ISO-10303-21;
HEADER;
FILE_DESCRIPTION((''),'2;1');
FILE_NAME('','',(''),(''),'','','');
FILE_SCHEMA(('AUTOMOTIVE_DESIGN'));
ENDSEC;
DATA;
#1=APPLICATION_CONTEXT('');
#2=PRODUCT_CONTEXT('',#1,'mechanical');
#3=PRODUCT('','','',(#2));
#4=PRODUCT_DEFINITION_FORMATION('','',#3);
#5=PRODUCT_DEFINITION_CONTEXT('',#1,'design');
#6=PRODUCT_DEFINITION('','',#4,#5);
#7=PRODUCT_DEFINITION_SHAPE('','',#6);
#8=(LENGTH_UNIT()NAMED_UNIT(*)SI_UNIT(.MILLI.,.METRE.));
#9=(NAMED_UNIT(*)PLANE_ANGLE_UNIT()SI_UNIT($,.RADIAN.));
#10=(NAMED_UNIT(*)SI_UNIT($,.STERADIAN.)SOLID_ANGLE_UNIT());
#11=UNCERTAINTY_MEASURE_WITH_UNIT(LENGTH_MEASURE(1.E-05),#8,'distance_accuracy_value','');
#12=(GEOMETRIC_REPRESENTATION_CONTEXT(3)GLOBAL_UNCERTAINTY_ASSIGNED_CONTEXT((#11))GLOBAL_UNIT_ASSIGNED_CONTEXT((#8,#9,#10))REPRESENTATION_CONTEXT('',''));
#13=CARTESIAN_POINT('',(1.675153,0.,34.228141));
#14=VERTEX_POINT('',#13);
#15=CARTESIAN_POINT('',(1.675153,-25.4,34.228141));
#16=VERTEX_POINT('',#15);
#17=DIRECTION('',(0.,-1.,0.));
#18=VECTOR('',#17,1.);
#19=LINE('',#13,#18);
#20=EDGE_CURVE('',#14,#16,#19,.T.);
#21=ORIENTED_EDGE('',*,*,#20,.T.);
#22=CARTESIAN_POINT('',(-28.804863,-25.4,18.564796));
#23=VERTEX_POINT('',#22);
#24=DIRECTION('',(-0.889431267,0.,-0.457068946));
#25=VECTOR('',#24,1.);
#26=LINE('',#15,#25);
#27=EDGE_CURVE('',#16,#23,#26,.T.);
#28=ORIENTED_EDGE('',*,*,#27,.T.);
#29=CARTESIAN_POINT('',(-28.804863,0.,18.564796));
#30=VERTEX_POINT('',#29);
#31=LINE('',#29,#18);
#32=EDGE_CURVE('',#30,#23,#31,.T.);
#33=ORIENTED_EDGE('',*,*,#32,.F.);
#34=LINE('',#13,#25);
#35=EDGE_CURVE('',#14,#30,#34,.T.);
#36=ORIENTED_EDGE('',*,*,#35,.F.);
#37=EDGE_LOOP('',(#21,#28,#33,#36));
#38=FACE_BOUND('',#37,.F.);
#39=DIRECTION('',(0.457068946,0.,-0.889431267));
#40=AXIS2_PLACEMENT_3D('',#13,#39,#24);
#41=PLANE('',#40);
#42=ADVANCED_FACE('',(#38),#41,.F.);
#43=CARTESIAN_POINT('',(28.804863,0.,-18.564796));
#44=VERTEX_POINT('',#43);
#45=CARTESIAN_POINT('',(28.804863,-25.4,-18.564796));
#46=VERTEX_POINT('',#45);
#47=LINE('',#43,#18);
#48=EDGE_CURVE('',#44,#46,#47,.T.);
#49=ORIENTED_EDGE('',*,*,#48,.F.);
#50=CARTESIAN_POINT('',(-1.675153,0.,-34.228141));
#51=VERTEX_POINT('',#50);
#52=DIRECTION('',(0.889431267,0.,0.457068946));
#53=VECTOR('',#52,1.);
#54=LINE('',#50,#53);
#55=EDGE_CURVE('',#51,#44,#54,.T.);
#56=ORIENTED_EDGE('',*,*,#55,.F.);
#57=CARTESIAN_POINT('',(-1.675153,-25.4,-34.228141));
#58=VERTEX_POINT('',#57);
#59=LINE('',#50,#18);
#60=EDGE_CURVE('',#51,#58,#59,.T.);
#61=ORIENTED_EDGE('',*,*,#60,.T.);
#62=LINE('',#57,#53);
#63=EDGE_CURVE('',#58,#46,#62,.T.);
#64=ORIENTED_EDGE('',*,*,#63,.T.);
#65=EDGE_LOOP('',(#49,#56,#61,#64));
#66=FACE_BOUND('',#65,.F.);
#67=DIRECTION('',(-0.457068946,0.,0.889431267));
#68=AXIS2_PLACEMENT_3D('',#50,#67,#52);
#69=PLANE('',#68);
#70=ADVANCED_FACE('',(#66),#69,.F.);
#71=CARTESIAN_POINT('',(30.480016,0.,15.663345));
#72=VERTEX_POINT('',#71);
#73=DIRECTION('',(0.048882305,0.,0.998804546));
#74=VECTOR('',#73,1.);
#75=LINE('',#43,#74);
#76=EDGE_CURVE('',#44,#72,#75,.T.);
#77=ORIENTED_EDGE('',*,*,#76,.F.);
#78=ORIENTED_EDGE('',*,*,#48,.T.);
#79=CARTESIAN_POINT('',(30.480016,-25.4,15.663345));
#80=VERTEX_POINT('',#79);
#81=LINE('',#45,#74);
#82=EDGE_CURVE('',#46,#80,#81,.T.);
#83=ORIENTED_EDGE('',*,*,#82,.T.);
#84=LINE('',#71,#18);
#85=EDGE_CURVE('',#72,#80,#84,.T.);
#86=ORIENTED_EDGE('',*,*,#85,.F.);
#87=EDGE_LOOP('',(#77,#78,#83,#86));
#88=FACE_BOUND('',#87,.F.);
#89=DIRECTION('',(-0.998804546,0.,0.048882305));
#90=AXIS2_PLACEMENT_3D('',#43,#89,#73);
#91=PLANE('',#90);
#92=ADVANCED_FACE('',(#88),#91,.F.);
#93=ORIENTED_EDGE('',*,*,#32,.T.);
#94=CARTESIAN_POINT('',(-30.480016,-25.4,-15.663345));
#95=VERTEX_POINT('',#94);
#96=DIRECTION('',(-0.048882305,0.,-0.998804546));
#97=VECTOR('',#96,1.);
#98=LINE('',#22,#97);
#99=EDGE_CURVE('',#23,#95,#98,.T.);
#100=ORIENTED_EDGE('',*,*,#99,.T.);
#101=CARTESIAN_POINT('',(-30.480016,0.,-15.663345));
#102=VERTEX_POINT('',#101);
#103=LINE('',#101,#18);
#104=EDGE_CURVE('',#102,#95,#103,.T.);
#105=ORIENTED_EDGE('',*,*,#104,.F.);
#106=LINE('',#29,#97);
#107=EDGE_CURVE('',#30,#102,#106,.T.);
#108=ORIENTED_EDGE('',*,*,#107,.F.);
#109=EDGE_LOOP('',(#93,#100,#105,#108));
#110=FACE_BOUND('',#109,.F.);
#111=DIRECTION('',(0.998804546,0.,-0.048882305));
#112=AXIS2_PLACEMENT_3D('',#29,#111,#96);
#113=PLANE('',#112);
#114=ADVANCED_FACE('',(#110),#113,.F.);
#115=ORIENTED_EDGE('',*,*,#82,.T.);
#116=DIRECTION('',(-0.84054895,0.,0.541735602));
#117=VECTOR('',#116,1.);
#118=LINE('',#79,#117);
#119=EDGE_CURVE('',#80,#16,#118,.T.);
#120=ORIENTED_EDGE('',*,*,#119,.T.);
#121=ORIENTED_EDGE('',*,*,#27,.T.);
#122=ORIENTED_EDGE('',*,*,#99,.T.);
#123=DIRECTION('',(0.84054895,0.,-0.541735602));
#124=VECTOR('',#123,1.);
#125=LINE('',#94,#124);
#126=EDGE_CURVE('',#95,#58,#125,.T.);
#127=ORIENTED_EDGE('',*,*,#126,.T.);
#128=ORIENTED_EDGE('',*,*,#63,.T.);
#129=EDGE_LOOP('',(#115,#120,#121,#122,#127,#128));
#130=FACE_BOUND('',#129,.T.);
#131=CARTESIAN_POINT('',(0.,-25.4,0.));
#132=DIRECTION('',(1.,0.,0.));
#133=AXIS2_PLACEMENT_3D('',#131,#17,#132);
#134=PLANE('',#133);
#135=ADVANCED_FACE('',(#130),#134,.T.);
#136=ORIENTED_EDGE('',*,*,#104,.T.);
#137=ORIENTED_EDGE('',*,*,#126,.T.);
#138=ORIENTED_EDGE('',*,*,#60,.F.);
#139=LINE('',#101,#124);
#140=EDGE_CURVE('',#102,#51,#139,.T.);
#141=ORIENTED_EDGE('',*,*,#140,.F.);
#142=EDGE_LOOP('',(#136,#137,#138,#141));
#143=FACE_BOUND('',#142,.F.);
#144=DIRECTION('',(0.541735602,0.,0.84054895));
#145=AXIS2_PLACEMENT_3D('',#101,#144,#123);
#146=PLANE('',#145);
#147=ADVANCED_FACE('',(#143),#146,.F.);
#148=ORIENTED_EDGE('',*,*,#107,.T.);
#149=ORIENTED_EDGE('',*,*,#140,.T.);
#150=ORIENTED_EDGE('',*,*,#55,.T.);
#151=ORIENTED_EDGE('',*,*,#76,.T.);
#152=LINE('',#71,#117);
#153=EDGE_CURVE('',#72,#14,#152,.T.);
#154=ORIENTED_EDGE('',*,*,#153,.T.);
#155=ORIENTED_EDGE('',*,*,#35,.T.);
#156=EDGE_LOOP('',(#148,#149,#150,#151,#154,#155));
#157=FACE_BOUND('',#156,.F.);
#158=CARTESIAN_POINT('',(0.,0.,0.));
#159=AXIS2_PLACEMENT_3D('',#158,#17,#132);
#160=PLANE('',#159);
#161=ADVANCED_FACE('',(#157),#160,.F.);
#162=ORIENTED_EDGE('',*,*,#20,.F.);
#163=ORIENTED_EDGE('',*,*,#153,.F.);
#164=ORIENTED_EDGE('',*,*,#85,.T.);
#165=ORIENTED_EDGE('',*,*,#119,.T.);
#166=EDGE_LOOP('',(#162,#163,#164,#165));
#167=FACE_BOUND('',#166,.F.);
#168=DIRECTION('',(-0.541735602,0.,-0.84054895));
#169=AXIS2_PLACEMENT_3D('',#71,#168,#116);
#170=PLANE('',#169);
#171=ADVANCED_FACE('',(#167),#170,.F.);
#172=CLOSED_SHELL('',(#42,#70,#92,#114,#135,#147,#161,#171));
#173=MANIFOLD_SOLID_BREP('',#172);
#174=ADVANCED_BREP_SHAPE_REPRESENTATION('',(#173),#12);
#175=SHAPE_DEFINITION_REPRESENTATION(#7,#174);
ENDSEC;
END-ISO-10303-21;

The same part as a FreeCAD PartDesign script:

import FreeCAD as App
import Part
import Sketcher
Q = App.Units.Quantity

doc = App.newDocument("Part")
params = doc.addObject("Spreadsheet::Sheet", "Params")
for row, (alias, value) in enumerate([
    ("pad1_length", "1 in"),
    ("pad2_length", "1 in"),
], start=1):
    params.set(f"A{row}", alias)
    params.set(f"B{row}", "=" + value)
    params.setAlias(f"B{row}", alias)

body = doc.addObject("PartDesign::Body", "Body")

sketch1 = doc.addObject("Sketcher::SketchObject", "Sketch")
body.addObject(sketch1)
sketch1.AttachmentSupport = (doc.XZ_Plane, [""])
sketch1.MapMode = "FlatFace"
sketch1.addGeometry(Part.LineSegment(App.Vector(-2, -34, 0), App.Vector(29, -19, 0)), False)
sketch1.addGeometry(Part.LineSegment(App.Vector(29, -19, 0), App.Vector(30, 16, 0)), False)
sketch1.addGeometry(Part.LineSegment(App.Vector(30, 16, 0), App.Vector(2, 34, 0)), False)
sketch1.addGeometry(Part.LineSegment(App.Vector(2, 34, 0), App.Vector(-29, 19, 0)), False)
sketch1.addGeometry(Part.LineSegment(App.Vector(-29, 19, 0), App.Vector(-30, -16, 0)), False)
sketch1.addGeometry(Part.LineSegment(App.Vector(-30, -16, 0), App.Vector(-2, -34, 0)), False)
sketch1.addConstraint(Sketcher.Constraint("Coincident", 0, 2, 1, 1))
sketch1.addConstraint(Sketcher.Constraint("Coincident", 1, 2, 2, 1))
sketch1.addConstraint(Sketcher.Constraint("Coincident", 2, 2, 3, 1))
sketch1.addConstraint(Sketcher.Constraint("Coincident", 3, 2, 4, 1))
sketch1.addConstraint(Sketcher.Constraint("Coincident", 4, 2, 5, 1))
sketch1.addConstraint(Sketcher.Constraint("Coincident", 5, 2, 0, 1))
sketch1.addConstraint(Sketcher.Constraint("Symmetric", 0, 2, 3, 2, -1, 1))
sketch1.addConstraint(Sketcher.Constraint("Symmetric", 1, 2, 4, 2, -1, 1))
sketch1.addConstraint(Sketcher.Constraint("Symmetric", 2, 2, 5, 2, -1, 1))
sketch1.addConstraint(Sketcher.Constraint("Equal", 0, 1))
sketch1.addConstraint(Sketcher.Constraint("Equal", 1, 2))
sketch1.addConstraint(Sketcher.Constraint("Distance", 1, Q("34.269108 mm")))
sketch1.addConstraint(Sketcher.Constraint("DistanceY", -1, 1, 2, 2, Q("34.228141 mm")))
sketch1.addConstraint(Sketcher.Constraint("DistanceY", 0, 2, 1, 2, Q("34.228141 mm")))
sketch1.addConstraint(Sketcher.Constraint("DistanceX", 2, 2, 0, 2, Q("27.12971 mm")))
pad1 = doc.addObject("PartDesign::Pad", "Pad")
body.addObject(pad1)
pad1.Profile = sketch1
pad1.setExpression("Length", "Params.pad1_length")

sketch2 = doc.addObject("Sketcher::SketchObject", "Sketch001")
body.addObject(sketch2)
sketch2.AttachmentSupport = (doc.XZ_Plane, [""])
sketch2.MapMode = "FlatFace"
sketch2.addGeometry(Part.Circle(App.Vector(0, 0, 0), App.Vector(0, 0, 1), 16), False)
sketch2.addConstraint(Sketcher.Constraint("Coincident", 0, 3, -1, 1))
sketch2.addConstraint(Sketcher.Constraint("Diameter", 0, Q("32.264444 mm")))
pad2 = doc.addObject("PartDesign::Pad", "Pad001")
body.addObject(pad2)
pad2.Profile = sketch2
pad2.setExpression("Length", "Params.pad2_length")

doc.recompute()
